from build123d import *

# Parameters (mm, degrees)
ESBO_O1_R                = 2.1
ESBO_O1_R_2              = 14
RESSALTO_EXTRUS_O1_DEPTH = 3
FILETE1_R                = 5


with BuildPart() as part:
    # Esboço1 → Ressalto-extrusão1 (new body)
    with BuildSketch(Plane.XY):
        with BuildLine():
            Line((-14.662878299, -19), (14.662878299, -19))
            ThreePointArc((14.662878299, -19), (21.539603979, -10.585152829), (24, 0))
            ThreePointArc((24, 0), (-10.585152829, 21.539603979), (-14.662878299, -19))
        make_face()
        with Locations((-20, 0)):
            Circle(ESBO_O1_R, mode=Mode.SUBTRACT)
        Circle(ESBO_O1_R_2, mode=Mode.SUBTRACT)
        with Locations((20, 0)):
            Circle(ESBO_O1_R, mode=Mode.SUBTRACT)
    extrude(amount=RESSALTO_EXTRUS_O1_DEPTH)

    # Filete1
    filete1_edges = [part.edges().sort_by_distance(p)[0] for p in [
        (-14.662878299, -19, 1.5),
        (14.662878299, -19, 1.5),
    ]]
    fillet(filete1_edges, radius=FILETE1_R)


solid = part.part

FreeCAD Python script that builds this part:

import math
import FreeCAD as App
import Part
import Sketcher
Q = App.Units.Quantity


def edges_at(feature, points):
    """Names of the edges that pass closest to the given points."""
    edges = feature.Shape.Edges
    near = lambda p: min(range(len(edges)), key=lambda i: edges[i].distToShape(Part.Vertex(*p))[0])
    return sorted({f"Edge{near(p) + 1}" for p in points})

doc = App.newDocument("Part")
body = doc.addObject("PartDesign::Body", "Body")

# Sketch on XY plane
sketch1 = body.newObject("Sketcher::SketchObject", "Sketch")
sketch1.AttachmentSupport = (doc.getObject("XY_Plane"), [""])
sketch1.MapMode = "FlatFace"
sketch1.addGeometry([
    Part.LineSegment(App.Vector(-14.7, -19, 0), App.Vector(14.7, -19, 0)),  # 0
    Part.ArcOfCircle(Part.Circle(App.Vector(0, 0, 0), App.Vector(0, 0, 1), 24), math.radians(-52), math.radians(0)),  # 1
    Part.ArcOfCircle(Part.Circle(App.Vector(0, 0, 0), App.Vector(0, 0, 1), 24), math.radians(0), math.radians(232)),  # 2
    Part.Circle(App.Vector(-20, 0, 0), App.Vector(0, 0, 1), 2.1),  # 3
    Part.Circle(App.Vector(0, 0, 0), App.Vector(0, 0, 1), 14),  # 4
    Part.Circle(App.Vector(20, 0, 0), App.Vector(0, 0, 1), 2.1),  # 5
], False)
sketch1.addConstraint([
    Sketcher.Constraint("Coincident", 0, 2, 1, 1),
    Sketcher.Constraint("Tangent", 1, 2, 2, 1),
    Sketcher.Constraint("Coincident", 2, 2, 0, 1),
    Sketcher.Constraint("Horizontal", 0),
    Sketcher.Constraint("Coincident", 1, 3, -1, 1),
    Sketcher.Constraint("Coincident", 4, 3, -1, 1),
    Sketcher.Constraint("Equal", 1, 2),
    Sketcher.Constraint("Equal", 3, 5),
    Sketcher.Constraint("Symmetric", 3, 3, 5, 3, -1, 1),
    Sketcher.Constraint("PointOnObject", 3, 3, -1),
    Sketcher.Constraint("PointOnObject", 1, 2, -1),
    Sketcher.Constraint("Diameter", 4, Q("28 mm")),
    Sketcher.Constraint("Radius", 1, Q("24 mm")),
    Sketcher.Constraint("Diameter", 3, Q("4.2 mm")),
    Sketcher.Constraint("DistanceX", 3, 3, -1, 1, Q("20 mm")),
    Sketcher.Constraint("DistanceY", 0, 2, -1, 1, Q("19 mm")),
])
pad1 = body.newObject("PartDesign::Pad", "Pad")
pad1.Profile = sketch1
pad1.Length = 3
doc.recompute()

fillet = body.newObject("PartDesign::Fillet", "Fillet")
fillet.Base = (pad1, edges_at(pad1, [(-14.663, -19, 1.5), (14.663, -19, 1.5)]))
fillet.Radius = 5

doc.recompute()
